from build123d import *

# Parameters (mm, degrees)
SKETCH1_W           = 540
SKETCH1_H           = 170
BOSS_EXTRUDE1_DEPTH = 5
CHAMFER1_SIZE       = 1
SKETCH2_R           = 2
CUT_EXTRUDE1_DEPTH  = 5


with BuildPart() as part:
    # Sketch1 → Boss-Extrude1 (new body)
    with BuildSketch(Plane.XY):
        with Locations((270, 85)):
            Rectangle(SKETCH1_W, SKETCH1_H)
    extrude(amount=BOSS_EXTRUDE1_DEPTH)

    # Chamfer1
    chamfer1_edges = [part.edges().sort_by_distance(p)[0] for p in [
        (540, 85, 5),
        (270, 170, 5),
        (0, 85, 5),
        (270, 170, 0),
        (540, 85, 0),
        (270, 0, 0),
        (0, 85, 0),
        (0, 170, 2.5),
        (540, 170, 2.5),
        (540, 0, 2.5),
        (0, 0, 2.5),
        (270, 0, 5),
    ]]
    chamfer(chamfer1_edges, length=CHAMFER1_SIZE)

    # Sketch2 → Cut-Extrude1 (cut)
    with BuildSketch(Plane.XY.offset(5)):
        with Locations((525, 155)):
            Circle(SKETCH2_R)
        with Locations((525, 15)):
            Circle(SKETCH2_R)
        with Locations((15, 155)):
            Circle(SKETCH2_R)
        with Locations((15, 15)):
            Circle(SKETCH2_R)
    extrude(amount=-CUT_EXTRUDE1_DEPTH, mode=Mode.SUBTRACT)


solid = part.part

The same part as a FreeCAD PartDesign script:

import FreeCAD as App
import Part
import Sketcher


def add_polygon(sketch, points):
    """Adds a closed chain of lines whose ends are joined by coincident constraints."""
    first, n = sketch.GeometryCount, len(points)
    for a, b in zip(points, points[1:] + points[:1]):
        sketch.addGeometry(Part.LineSegment(App.Vector(*a, 0), App.Vector(*b, 0)), False)
    for i in range(n):
        sketch.addConstraint(Sketcher.Constraint("Coincident", first + i, 2, first + (i + 1) % n, 1))

doc = App.newDocument("Part")
body = doc.addObject("PartDesign::Body", "Body")

# Sketch on XY plane
sketch1 = body.newObject("Sketcher::SketchObject", "Sketch")
sketch1.AttachmentSupport = (doc.getObject("XY_Plane"), [""])
sketch1.MapMode = "FlatFace"
add_polygon(sketch1, [(0, 170), (0, 0), (540, 0), (540, 170)])  # lines 0-3
sketch1.addConstraint([
    Sketcher.Constraint("Vertical", 0),
    Sketcher.Constraint("Horizontal", 1),
    Sketcher.Constraint("Vertical", 2),
    Sketcher.Constraint("Horizontal", 3),
    Sketcher.Constraint("Coincident", 0, 2, -1, 1),
    Sketcher.Constraint("DistanceX", 1, 1, 1, 2, 540.0),
    Sketcher.Constraint("DistanceY", 0, 2, 0, 1, 170.0),
])
pad1 = body.newObject("PartDesign::Pad", "Pad")
pad1.Profile = sketch1
pad1.Length = 5
doc.recompute()

chamfer = body.newObject("PartDesign::Chamfer", "Chamfer")
chamfer.Base = (pad1, ["Edge1"])
chamfer.UseAllEdges = True
chamfer.Size = 1

# Sketch on XY plane
sketch2 = body.newObject("Sketcher::SketchObject", "Sketch001")
sketch2.AttachmentSupport = (doc.getObject("XY_Plane"), [""])
sketch2.MapMode = "FlatFace"
sketch2.AttachmentOffset = App.Placement(App.Vector(0, 0, 5), App.Rotation())
sketch2.addGeometry([
    Part.Circle(App.Vector(525, 155, 0), App.Vector(0, 0, 1), 2),
    Part.Circle(App.Vector(525, 15, 0), App.Vector(0, 0, 1), 2),
    Part.Circle(App.Vector(15, 155, 0), App.Vector(0, 0, 1), 2),
    Part.Circle(App.Vector(15, 15, 0), App.Vector(0, 0, 1), 2),
], False)
sketch2.addConstraint([
    Sketcher.Constraint("Equal", 0, 1),
    Sketcher.Constraint("Equal", 1, 2),
    Sketcher.Constraint("Equal", 2, 3),
    Sketcher.Constraint("Horizontal", 0, 3, 2, 3),
    Sketcher.Constraint("Horizontal", 1, 3, 3, 3),
    Sketcher.Constraint("Vertical", 0, 3, 1, 3),
    Sketcher.Constraint("Vertical", 2, 3, 3, 3),
    Sketcher.Constraint("Diameter", 0, 4.0),
    Sketcher.Constraint("DistanceX", -1, 1, 0, 3, 525.0),
    Sketcher.Constraint("DistanceY", -1, 1, 0, 3, 155.0),
    Sketcher.Constraint("DistanceY", -1, 1, 1, 3, 15.0),
    Sketcher.Constraint("DistanceX", -1, 1, 2, 3, 15.0),
])
pocket1 = body.newObject("PartDesign::Pocket", "Pocket")
pocket1.Profile = sketch2
pocket1.Length = 5

doc.recompute()
